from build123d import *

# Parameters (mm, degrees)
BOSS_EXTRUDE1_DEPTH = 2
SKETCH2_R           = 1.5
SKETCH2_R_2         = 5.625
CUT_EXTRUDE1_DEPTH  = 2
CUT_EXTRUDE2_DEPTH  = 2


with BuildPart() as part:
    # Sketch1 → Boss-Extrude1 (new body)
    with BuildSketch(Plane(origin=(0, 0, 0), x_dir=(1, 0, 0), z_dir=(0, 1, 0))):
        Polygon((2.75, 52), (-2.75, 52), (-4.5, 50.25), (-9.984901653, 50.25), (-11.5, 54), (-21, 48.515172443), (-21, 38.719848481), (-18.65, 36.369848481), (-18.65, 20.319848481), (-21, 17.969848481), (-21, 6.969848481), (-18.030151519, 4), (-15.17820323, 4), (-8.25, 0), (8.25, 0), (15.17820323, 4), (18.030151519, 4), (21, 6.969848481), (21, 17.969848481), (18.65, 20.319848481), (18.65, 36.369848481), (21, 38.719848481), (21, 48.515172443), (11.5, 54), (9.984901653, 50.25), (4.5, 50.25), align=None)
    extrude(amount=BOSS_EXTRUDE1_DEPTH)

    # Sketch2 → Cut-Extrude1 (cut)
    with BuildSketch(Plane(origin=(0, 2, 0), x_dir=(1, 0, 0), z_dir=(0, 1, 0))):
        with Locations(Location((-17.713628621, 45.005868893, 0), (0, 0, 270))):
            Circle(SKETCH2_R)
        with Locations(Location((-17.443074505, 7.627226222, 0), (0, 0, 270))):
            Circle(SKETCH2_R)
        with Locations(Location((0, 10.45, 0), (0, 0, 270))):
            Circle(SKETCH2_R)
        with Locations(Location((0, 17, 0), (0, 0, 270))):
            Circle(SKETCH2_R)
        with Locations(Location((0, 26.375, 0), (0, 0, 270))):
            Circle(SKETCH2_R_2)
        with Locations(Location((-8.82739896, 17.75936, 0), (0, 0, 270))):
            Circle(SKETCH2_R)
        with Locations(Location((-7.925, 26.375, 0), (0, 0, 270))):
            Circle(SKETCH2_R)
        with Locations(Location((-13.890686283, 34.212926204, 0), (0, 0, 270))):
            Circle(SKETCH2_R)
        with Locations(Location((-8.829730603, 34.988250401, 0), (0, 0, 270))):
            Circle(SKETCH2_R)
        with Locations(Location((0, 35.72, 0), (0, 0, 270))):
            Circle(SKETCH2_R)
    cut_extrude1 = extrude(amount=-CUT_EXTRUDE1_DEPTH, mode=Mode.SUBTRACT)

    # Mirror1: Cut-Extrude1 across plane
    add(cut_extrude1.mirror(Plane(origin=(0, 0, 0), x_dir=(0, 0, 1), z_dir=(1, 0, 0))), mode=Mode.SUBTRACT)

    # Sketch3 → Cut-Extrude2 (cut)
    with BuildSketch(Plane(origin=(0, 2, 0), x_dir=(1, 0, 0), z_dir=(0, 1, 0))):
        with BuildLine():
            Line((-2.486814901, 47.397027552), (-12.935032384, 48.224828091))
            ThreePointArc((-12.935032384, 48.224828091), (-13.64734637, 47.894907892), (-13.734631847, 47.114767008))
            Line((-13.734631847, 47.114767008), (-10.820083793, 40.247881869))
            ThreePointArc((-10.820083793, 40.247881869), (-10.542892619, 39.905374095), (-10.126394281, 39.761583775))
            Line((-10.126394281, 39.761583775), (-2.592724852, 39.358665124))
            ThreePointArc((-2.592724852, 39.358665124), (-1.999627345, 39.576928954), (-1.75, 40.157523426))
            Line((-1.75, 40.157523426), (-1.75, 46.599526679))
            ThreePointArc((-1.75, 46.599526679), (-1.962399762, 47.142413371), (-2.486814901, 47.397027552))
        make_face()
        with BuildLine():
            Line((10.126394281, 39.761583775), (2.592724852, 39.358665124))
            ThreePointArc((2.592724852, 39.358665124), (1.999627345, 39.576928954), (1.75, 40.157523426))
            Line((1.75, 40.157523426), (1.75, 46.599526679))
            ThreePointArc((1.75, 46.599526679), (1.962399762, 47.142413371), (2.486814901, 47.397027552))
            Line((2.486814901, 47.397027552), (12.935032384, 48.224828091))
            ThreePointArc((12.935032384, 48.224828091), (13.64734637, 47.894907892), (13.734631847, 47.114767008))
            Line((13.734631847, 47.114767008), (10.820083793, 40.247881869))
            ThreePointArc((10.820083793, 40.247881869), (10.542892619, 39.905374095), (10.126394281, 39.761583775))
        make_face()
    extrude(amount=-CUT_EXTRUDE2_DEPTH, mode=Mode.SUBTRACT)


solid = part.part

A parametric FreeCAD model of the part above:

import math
import FreeCAD as App
import Part
import Sketcher
from FreeCAD import Vector
Q = App.Units.Quantity

doc = App.newDocument("Part")
body = doc.addObject("PartDesign::Body", "Body")

# Sketch on XZ plane
sketch1 = doc.addObject("Sketcher::SketchObject", "Sketch")
body.addObject(sketch1)
sketch1.AttachmentSupport = (doc.XZ_Plane, [""])
sketch1.MapMode = "FlatFace"
sketch1.addGeometry([
    Part.LineSegment(Vector(2.75, -52, 0), Vector(-2.75, -52, 0)),  # 0
    Part.LineSegment(Vector(-2.75, -52, 0), Vector(-4.5, -50.25, 0)),  # 1
    Part.LineSegment(Vector(-4.5, -50.25, 0), Vector(-9.984902, -50.25, 0)),  # 2
    Part.LineSegment(Vector(-9.984902, -50.25, 0), Vector(-11.5, -54, 0)),  # 3
    Part.LineSegment(Vector(-11.5, -54, 0), Vector(-21, -48.515172, 0)),  # 4
    Part.LineSegment(Vector(-21, -48.515172, 0), Vector(-21, -38.719848, 0)),  # 5
    Part.LineSegment(Vector(-21, -38.719848, 0), Vector(-18.65, -36.369848, 0)),  # 6
    Part.LineSegment(Vector(-18.65, -36.369848, 0), Vector(-18.65, -20.319848, 0)),  # 7
    Part.LineSegment(Vector(-18.65, -20.319848, 0), Vector(-21, -17.969848, 0)),  # 8
    Part.LineSegment(Vector(-21, -17.969848, 0), Vector(-21, -6.969848, 0)),  # 9
    Part.LineSegment(Vector(-21, -6.969848, 0), Vector(-18.030152, -4, 0)),  # 10
    Part.LineSegment(Vector(-18.030152, -4, 0), Vector(-15.178203, -4, 0)),  # 11
    Part.LineSegment(Vector(-15.178203, -4, 0), Vector(-8.25, 0, 0)),  # 12
    Part.LineSegment(Vector(-8.25, 0, 0), Vector(8.25, 0, 0)),  # 13
    Part.LineSegment(Vector(8.25, 0, 0), Vector(15.178203, -4, 0)),  # 14
    Part.LineSegment(Vector(15.178203, -4, 0), Vector(18.030152, -4, 0)),  # 15
    Part.LineSegment(Vector(18.030152, -4, 0), Vector(21, -6.969848, 0)),  # 16
    Part.LineSegment(Vector(21, -6.969848, 0), Vector(21, -17.969848, 0)),  # 17
    Part.LineSegment(Vector(21, -17.969848, 0), Vector(18.65, -20.319848, 0)),  # 18
    Part.LineSegment(Vector(18.65, -20.319848, 0), Vector(18.65, -36.369848, 0)),  # 19
    Part.LineSegment(Vector(18.65, -36.369848, 0), Vector(21, -38.719848, 0)),  # 20
    Part.LineSegment(Vector(21, -38.719848, 0), Vector(21, -48.515172, 0)),  # 21
    Part.LineSegment(Vector(21, -48.515172, 0), Vector(11.5, -54, 0)),  # 22
    Part.LineSegment(Vector(11.5, -54, 0), Vector(9.984902, -50.25, 0)),  # 23
    Part.LineSegment(Vector(9.984902, -50.25, 0), Vector(4.5, -50.25, 0)),  # 24
    Part.LineSegment(Vector(4.5, -50.25, 0), Vector(2.75, -52, 0)),  # 25
], False)
sketch1.addConstraint([
    Sketcher.Constraint("Coincident", 0, 2, 1, 1),
    Sketcher.Constraint("Coincident", 1, 2, 2, 1),
    Sketcher.Constraint("Coincident", 2, 2, 3, 1),
    Sketcher.Constraint("Coincident", 3, 2, 4, 1),
    Sketcher.Constraint("Coincident", 4, 2, 5, 1),
    Sketcher.Constraint("Coincident", 5, 2, 6, 1),
    Sketcher.Constraint("Coincident", 6, 2, 7, 1),
    Sketcher.Constraint("Coincident", 7, 2, 8, 1),
    Sketcher.Constraint("Coincident", 8, 2, 9, 1),
    Sketcher.Constraint("Coincident", 9, 2, 10, 1),
    Sketcher.Constraint("Coincident", 10, 2, 11, 1),
    Sketcher.Constraint("Coincident", 11, 2, 12, 1),
    Sketcher.Constraint("Coincident", 12, 2, 13, 1),
    Sketcher.Constraint("Coincident", 13, 2, 14, 1),
    Sketcher.Constraint("Coincident", 14, 2, 15, 1),
    Sketcher.Constraint("Coincident", 15, 2, 16, 1),
    Sketcher.Constraint("Coincident", 16, 2, 17, 1),
    Sketcher.Constraint("Coincident", 17, 2, 18, 1),
    Sketcher.Constraint("Coincident", 18, 2, 19, 1),
    Sketcher.Constraint("Coincident", 19, 2, 20, 1),
    Sketcher.Constraint("Coincident", 20, 2, 21, 1),
    Sketcher.Constraint("Coincident", 21, 2, 22, 1),
    Sketcher.Constraint("Coincident", 22, 2, 23, 1),
    Sketcher.Constraint("Coincident", 23, 2, 24, 1),
    Sketcher.Constraint("Coincident", 24, 2, 25, 1),
    Sketcher.Constraint("Coincident", 25, 2, 0, 1),
    Sketcher.Constraint("Horizontal", 0),
    Sketcher.Constraint("Horizontal", 2),
    Sketcher.Constraint("Vertical", 5),
    Sketcher.Constraint("Vertical", 7),
    Sketcher.Constraint("Vertical", 9),
    Sketcher.Constraint("Horizontal", 11),
    Sketcher.Constraint("Horizontal", 13),
    Sketcher.Constraint("Horizontal", 15),
    Sketcher.Constraint("Vertical", 17),
    Sketcher.Constraint("Vertical", 19),
    Sketcher.Constraint("Vertical", 21),
    Sketcher.Constraint("Horizontal", 24),
    Sketcher.Constraint("Symmetric", 12, 2, 13, 2, -1, 1),
    Sketcher.Constraint("Symmetric", 11, 2, 14, 2, -2),
    Sketcher.Constraint("Symmetric", 9, 2, 16, 2, -2),
    Sketcher.Constraint("Symmetric", 7, 2, 18, 2, -2),
    Sketcher.Constraint("Symmetric", 5, 2, 20, 2, -2),
    Sketcher.Constraint("Symmetric", 3, 2, 22, 2, -2),
    Sketcher.Constraint("Symmetric", 2, 2, 23, 2, -2),
    Sketcher.Constraint("Perpendicular", 1, 6),
    Sketcher.Constraint("Perpendicular", 6, 8),
    Sketcher.Constraint("Perpendicular", 8, 10),
    Sketcher.Constraint("Parallel", 4, 14),
    Sketcher.Constraint("Perpendicular", 10, 16),
    Sketcher.Constraint("Perpendicular", 16, 18),
    Sketcher.Constraint("Perpendicular", 18, 20),
    Sketcher.Constraint("Parallel", 12, 22),
    Sketcher.Constraint("Perpendicular", 20, 25),
    Sketcher.Constraint("Horizontal", 8, 2, 17, 2),
    Sketcher.Constraint("Vertical", 5, 2, 8, 2),
    Sketcher.Constraint("Equal", 2, 24),
    Sketcher.Constraint("DistanceY", 9, 1, 9, 2, 11.0),
    Sketcher.Constraint("Angle", 3, Q("-112 deg")),
    Sketcher.Constraint("Angle", 4, Q("150 deg")),
    Sketcher.Constraint("Distance", 12, 8.0),
    Sketcher.Constraint("DistanceX", 0, 2, 0, 1, 5.5),
    Sketcher.Constraint("DistanceX", 13, 1, 13, 2, 16.5),
    Sketcher.Constraint("DistanceY", 0, 2, -1, 1, 52.0),
    Sketcher.Constraint("DistanceY", 3, 2, -1, 1, 54.0),
    Sketcher.Constraint("DistanceX", 4, 2, -1, 1, 21.0),
    Sketcher.Constraint("DistanceX", 3, 2, 1, 2, 7.0),
    Sketcher.Constraint("DistanceX", 1, 2, 22, 2, 16.0),
    Sketcher.Constraint("Distance", 10, 4.2),
    Sketcher.Constraint("DistanceY", 7, 1, 7, 2, 16.05),
    Sketcher.Constraint("DistanceY", 5, 2, 7, 2, 18.4),
])
pad1 = doc.addObject("PartDesign::Pad", "Pad")
body.addObject(pad1)
pad1.Profile = sketch1
pad1.Length = 2
pad1.Reversed = True

# Sketch on XZ plane
sketch2 = doc.addObject("Sketcher::SketchObject", "Sketch001")
body.addObject(sketch2)
sketch2.AttachmentSupport = (doc.XZ_Plane, [""])
sketch2.MapMode = "FlatFace"
sketch2.AttachmentOffset = App.Placement(Vector(0, 0, -2), App.Rotation())
sketch2.addGeometry([
    Part.Circle(Vector(-17.713629, -45.005869, 0), Vector(0, 0, 1), 1.5),  # 0
    Part.Circle(Vector(-17.443075, -7.627226, 0), Vector(0, 0, 1), 1.5),  # 1
    Part.Circle(Vector(0, -10.45, 0), Vector(0, 0, 1), 1.5),  # 2
    Part.Circle(Vector(0, -17, 0), Vector(0, 0, 1), 1.5),  # 3
    Part.Circle(Vector(0, -26.375, 0), Vector(0, 0, 1), 5.625),  # 4
    Part.Circle(Vector(-8.827399, -17.75936, 0), Vector(0, 0, 1), 1.5),  # 5
    Part.Circle(Vector(-7.925, -26.375, 0), Vector(0, 0, 1), 1.5),  # 6
    Part.Circle(Vector(-13.890686, -34.212926, 0), Vector(0, 0, 1), 1.5),  # 7
    Part.Circle(Vector(-8.829731, -34.98825, 0), Vector(0, 0, 1), 1.5),  # 8
    Part.Circle(Vector(0, -35.72, 0), Vector(0, 0, 1), 1.5),  # 9
], False)
sketch2.addConstraint([
    Sketcher.Constraint("Equal", 0, 1),
    Sketcher.Constraint("Equal", 1, 2),
    Sketcher.Constraint("Equal", 2, 3),
    Sketcher.Constraint("Equal", 3, 5),
    Sketcher.Constraint("Equal", 5, 6),
    Sketcher.Constraint("Equal", 6, 7),
    Sketcher.Constraint("Equal", 7, 8),
    Sketcher.Constraint("Equal", 8, 9),
    Sketcher.Constraint("PointOnObject", 2, 3, -2),
    Sketcher.Constraint("PointOnObject", 3, 3, -2),
    Sketcher.Constraint("PointOnObject", 4, 3, -2),
    Sketcher.Constraint("PointOnObject", 9, 3, -2),
    Sketcher.Constraint("Horizontal", 4, 3, 6, 3),
    Sketcher.Constraint("Diameter", 0, 3.0),
    Sketcher.Constraint("Diameter", 4, 11.25),
    Sketcher.Constraint("DistanceY", 3, 3, -1, 1, 17.0),
    Sketcher.Constraint("DistanceY", 2, 3, -1, 1, 10.45),
    Sketcher.Constraint("DistanceY", 9, 3, -1, 1, 35.72),
    Sketcher.Constraint("DistanceY", 4, 3, -1, 1, 26.375),
    Sketcher.Constraint("DistanceX", 6, 3, -1, 1, 7.925),
    Sketcher.Constraint("DistanceX", 5, 3, -1, 1, 8.827399),
    Sketcher.Constraint("DistanceX", 0, 3, 8, 3, 8.883898),
    Sketcher.Constraint("DistanceX", 0, 3, -1, 1, 17.713629),
    Sketcher.Constraint("DistanceY", 0, 3, -1, 1, 45.005869),
    Sketcher.Constraint("DistanceY", 5, 3, -1, 1, 17.75936),
    Sketcher.Constraint("DistanceY", 8, 3, -1, 1, 34.98825),
    Sketcher.Constraint("DistanceX", 1, 3, -1, 1, 17.443075),
    Sketcher.Constraint("DistanceY", 1, 3, -1, 1, 7.627226),
    Sketcher.Constraint("DistanceX", 7, 3, -1, 1, 13.890686),
    Sketcher.Constraint("DistanceY", 7, 3, -1, 1, 34.212926),
])
pocket1 = doc.addObject("PartDesign::Pocket", "Pocket")
body.addObject(pocket1)
pocket1.Profile = sketch2
pocket1.Length = 2
pocket1.Reversed = True
doc.recompute()

mirrored = doc.addObject("PartDesign::Mirrored", "Mirrored")
body.addObject(mirrored)
mirrored.Originals = [pocket1]
mirrored.MirrorPlane = (doc.YZ_Plane, [""])
body.Tip = mirrored

# Sketch on XZ plane
sketch3 = doc.addObject("Sketcher::SketchObject", "Sketch002")
body.addObject(sketch3)
sketch3.AttachmentSupport = (doc.XZ_Plane, [""])
sketch3.MapMode = "FlatFace"
sketch3.AttachmentOffset = App.Placement(Vector(0, 0, -2), App.Rotation())
sketch3.addGeometry([
    Part.LineSegment(Vector(-2.486815, -47.397028, 0), Vector(-12.935032, -48.224828, 0)),  # 0
    Part.ArcOfCircle(Part.Circle(Vector(-12.998217, -47.427327, 0), Vector(0, 0, 1), 0.8), math.radians(157.001921), math.radians(274.530017)),  # 1
    Part.LineSegment(Vector(-13.734632, -47.114767, 0), Vector(-10.820084, -40.247882, 0)),  # 2
    Part.ArcOfCircle(Part.Circle(Vector(-10.083669, -40.560442, 0), Vector(0, 0, 1), 0.8), math.radians(93.061399), math.radians(157.001921)),  # 3
    Part.LineSegment(Vector(-10.126394, -39.761584, 0), Vector(-2.592725, -39.358665, 0)),  # 4
    Part.ArcOfCircle(Part.Circle(Vector(-2.55, -40.157523, 0), Vector(0, 0, 1), 0.8), math.radians(0), math.radians(93.061399)),  # 5
    Part.LineSegment(Vector(-1.75, -40.157523, 0), Vector(-1.75, -46.599527, 0)),  # 6
    Part.ArcOfCircle(Part.Circle(Vector(-2.55, -46.599527, 0), Vector(0, 0, 1), 0.8), math.radians(-85.469983), math.radians(0)),  # 7
    Part.LineSegment(Vector(2.592725, -39.358665, 0), Vector(10.126394, -39.761584, 0)),  # 8
    Part.ArcOfCircle(Part.Circle(Vector(10.083669, -40.560442, 0), Vector(0, 0, 1), 0.8), math.radians(22.998079), math.radians(86.938601)),  # 9
    Part.LineSegment(Vector(10.820084, -40.247882, 0), Vector(13.734632, -47.114767, 0)),  # 10
    Part.ArcOfCircle(Part.Circle(Vector(12.998217, -47.427327, 0), Vector(0, 0, 1), 0.8), math.radians(-94.530017), math.radians(22.998079)),  # 11
    Part.LineSegment(Vector(12.935032, -48.224828, 0), Vector(2.486815, -47.397028, 0)),  # 12
    Part.ArcOfCircle(Part.Circle(Vector(2.55, -46.599527, 0), Vector(0, 0, 1), 0.8), math.radians(180), math.radians(265.469983)),  # 13
    Part.LineSegment(Vector(1.75, -46.599527, 0), Vector(1.75, -40.157523, 0)),  # 14
    Part.ArcOfCircle(Part.Circle(Vector(2.55, -40.157523, 0), Vector(0, 0, 1), 0.8), math.radians(86.938601), math.radians(180)),  # 15
], False)
sketch3.addConstraint([
    Sketcher.Constraint("Tangent", 0, 2, 1, 2),
    Sketcher.Constraint("Tangent", 1, 1, 2, 1),
    Sketcher.Constraint("Tangent", 2, 2, 3, 2),
    Sketcher.Constraint("Tangent", 3, 1, 4, 1),
    Sketcher.Constraint("Tangent", 4, 2, 5, 2),
    Sketcher.Constraint("Tangent", 5, 1, 6, 1),
    Sketcher.Constraint("Tangent", 6, 2, 7, 2),
    Sketcher.Constraint("Tangent", 7, 1, 0, 1),
    Sketcher.Constraint("Tangent", 8, 2, 9, 2),
    Sketcher.Constraint("Tangent", 9, 1, 10, 1),
    Sketcher.Constraint("Tangent", 10, 2, 11, 2),
    Sketcher.Constraint("Tangent", 11, 1, 12, 1),
    Sketcher.Constraint("Tangent", 12, 2, 13, 2),
    Sketcher.Constraint("Tangent", 13, 1, 14, 1),
    Sketcher.Constraint("Tangent", 14, 2, 15, 2),
    Sketcher.Constraint("Tangent", 15, 1, 8, 1),
    Sketcher.Constraint("Vertical", 6),
    Sketcher.Constraint("Vertical", 14),
    Sketcher.Constraint("Equal", 1, 3),
    Sketcher.Constraint("Equal", 3, 5),
    Sketcher.Constraint("Equal", 5, 7),
    Sketcher.Constraint("Equal", 7, 9),
    Sketcher.Constraint("Equal", 9, 11),
    Sketcher.Constraint("Equal", 11, 13),
    Sketcher.Constraint("Equal", 13, 15),
    Sketcher.Constraint("Symmetric", 3, 3, 9, 3, -2),
    Sketcher.Constraint("Symmetric", 1, 3, 11, 3, -2),
    Sketcher.Constraint("Symmetric", 7, 3, 13, 3, -2),
    Sketcher.Constraint("Horizontal", 5, 3, 15, 3),
    Sketcher.Constraint("Radius", 1, 0.8),
    Sketcher.Constraint("Angle", 0, Q("-175.469983 deg")),
    Sketcher.Constraint("DistanceX", 7, 3, 13, 3, 5.1),
    Sketcher.Constraint("DistanceY", 1, 3, 7, 3, 0.827801),
    Sketcher.Constraint("DistanceX", 1, 1, 0, 2, 0.799599),
    Sketcher.Constraint("DistanceY", 6, 2, 6, 1, 6.442003),
    Sketcher.Constraint("DistanceX", 3, 3, -1, 1, 10.083669),
    Sketcher.Constraint("DistanceY", 0, 2, -1, 1, 48.224828),
])
pocket2 = doc.addObject("PartDesign::Pocket", "Pocket001")
body.addObject(pocket2)
pocket2.Profile = sketch3
pocket2.Length = 2
pocket2.Reversed = True

doc.recompute()
